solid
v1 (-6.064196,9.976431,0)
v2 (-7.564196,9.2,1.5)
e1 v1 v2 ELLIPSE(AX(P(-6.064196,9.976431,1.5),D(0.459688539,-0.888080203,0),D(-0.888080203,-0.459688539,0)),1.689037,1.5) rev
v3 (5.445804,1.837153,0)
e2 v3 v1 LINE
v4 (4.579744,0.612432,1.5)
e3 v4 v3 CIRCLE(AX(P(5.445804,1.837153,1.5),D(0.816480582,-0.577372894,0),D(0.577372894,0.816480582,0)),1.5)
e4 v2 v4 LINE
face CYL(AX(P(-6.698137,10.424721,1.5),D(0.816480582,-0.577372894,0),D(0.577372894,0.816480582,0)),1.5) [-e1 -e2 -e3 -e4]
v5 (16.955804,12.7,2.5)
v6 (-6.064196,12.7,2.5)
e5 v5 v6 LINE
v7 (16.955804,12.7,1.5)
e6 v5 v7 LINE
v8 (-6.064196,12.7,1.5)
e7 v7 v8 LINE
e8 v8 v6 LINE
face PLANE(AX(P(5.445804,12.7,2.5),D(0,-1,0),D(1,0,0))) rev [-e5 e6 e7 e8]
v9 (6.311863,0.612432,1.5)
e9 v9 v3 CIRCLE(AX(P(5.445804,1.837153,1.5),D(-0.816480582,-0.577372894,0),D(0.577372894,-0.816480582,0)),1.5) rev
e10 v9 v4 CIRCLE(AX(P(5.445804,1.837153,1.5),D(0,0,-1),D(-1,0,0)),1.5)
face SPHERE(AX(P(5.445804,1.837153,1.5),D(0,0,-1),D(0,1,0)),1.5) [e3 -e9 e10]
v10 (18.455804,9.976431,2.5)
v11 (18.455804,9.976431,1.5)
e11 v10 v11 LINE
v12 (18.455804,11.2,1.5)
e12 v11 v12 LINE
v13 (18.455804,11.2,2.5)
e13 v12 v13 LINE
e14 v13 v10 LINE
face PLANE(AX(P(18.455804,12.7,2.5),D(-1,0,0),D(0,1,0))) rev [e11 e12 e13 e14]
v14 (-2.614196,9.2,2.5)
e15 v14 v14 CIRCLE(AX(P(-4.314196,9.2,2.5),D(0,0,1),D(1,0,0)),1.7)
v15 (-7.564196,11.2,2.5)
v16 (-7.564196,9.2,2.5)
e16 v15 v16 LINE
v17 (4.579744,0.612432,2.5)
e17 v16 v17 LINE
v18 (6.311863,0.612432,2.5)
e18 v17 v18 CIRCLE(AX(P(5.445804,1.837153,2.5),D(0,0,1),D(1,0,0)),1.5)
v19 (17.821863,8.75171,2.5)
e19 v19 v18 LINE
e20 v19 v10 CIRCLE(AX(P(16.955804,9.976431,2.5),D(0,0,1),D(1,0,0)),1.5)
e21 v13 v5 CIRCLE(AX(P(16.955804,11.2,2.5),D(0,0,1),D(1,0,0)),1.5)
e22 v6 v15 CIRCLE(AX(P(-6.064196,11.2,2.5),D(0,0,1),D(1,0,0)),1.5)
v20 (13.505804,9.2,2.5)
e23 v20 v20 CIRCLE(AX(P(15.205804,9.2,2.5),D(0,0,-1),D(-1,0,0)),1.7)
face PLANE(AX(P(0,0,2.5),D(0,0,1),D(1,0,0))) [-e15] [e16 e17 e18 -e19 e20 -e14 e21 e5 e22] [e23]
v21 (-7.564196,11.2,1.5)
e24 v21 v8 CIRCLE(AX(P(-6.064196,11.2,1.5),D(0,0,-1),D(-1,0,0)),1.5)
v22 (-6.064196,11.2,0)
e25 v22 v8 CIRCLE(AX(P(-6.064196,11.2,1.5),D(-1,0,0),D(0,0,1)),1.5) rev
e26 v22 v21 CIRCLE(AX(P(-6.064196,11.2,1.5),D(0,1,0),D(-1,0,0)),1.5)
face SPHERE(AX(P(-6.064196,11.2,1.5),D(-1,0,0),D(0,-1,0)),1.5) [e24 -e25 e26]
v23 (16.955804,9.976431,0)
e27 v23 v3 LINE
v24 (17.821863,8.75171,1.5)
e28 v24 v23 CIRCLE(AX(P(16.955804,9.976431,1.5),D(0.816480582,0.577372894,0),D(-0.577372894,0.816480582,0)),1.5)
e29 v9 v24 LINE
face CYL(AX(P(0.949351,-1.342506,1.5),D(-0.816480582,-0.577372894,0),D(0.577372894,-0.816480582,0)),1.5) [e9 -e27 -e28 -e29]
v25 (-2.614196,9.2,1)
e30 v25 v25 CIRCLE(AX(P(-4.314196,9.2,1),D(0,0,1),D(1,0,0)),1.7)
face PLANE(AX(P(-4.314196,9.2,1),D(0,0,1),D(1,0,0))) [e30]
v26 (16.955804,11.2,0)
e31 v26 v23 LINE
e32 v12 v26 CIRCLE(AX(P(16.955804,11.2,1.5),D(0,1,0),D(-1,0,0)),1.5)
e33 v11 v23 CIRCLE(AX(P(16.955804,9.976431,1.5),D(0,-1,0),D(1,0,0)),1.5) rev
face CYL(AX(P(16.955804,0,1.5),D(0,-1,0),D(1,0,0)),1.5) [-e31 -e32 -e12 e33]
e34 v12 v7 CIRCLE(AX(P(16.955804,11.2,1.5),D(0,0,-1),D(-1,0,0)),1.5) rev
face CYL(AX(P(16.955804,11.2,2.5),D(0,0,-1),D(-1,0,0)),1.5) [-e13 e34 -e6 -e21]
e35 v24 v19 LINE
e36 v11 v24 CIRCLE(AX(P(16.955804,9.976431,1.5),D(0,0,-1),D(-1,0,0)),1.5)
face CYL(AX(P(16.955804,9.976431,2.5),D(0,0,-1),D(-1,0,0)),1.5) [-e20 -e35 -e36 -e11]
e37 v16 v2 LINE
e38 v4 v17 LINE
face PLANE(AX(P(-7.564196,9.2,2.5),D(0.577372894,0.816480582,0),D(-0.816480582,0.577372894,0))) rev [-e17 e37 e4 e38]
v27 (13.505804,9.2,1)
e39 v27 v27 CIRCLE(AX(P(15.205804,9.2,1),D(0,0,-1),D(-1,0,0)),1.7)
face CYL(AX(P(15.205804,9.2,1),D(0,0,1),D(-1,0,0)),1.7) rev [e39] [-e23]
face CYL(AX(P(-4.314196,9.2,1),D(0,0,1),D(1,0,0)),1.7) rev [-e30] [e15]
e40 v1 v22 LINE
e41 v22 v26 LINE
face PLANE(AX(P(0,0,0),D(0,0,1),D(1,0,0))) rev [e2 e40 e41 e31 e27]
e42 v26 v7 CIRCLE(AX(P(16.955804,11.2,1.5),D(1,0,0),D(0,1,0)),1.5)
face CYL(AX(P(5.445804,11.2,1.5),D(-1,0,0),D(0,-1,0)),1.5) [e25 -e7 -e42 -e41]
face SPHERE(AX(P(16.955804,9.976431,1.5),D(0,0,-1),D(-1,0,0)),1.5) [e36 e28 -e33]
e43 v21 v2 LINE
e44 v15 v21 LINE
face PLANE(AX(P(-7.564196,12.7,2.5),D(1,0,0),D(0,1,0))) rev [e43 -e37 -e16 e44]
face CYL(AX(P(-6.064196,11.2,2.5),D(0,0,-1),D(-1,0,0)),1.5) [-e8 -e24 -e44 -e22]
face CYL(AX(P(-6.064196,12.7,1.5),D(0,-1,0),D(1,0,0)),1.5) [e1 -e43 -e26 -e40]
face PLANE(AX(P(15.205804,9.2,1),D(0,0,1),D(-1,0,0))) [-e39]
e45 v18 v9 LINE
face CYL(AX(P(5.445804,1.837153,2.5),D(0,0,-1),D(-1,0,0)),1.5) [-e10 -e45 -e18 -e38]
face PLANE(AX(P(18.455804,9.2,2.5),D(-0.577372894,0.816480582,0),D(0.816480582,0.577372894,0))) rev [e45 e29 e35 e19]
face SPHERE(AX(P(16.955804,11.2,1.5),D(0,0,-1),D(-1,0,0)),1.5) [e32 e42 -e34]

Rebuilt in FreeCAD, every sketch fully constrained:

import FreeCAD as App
import Part
import Sketcher
from FreeCAD import Vector
Q = App.Units.Quantity


def edges_at(feature, points):
    """Names of the edges that pass closest to the given points."""
    edges = feature.Shape.Edges
    near = lambda p: min(range(len(edges)), key=lambda i: edges[i].distToShape(Part.Vertex(*p))[0])
    return sorted({f"Edge{near(p) + 1}" for p in points})


def add_polygon(sketch, points):
    """Adds a closed chain of lines whose ends are joined by coincident constraints."""
    first, n = sketch.GeometryCount, len(points)
    for a, b in zip(points, points[1:] + points[:1]):
        sketch.addGeometry(Part.LineSegment(App.Vector(*a, 0), App.Vector(*b, 0)), False)
    for i in range(n):
        sketch.addConstraint(Sketcher.Constraint("Coincident", first + i, 2, first + (i + 1) % n, 1))

doc = App.newDocument("Part")
body = doc.addObject("PartDesign::Body", "Body")

# Sketch on XY plane
sketch1 = body.newObject("Sketcher::SketchObject", "Sketch")
sketch1.AttachmentSupport = (doc.getObject("XY_Plane"), [""])
sketch1.MapMode = "FlatFace"
add_polygon(sketch1, [(-7.6, 12.7), (-7.6, 9.2), (5.4, 0), (5.4, 12.7)])  # lines 0-3
sketch1.addConstraint([
    Sketcher.Constraint("Vertical", 0),
    Sketcher.Constraint("Vertical", 2),
    Sketcher.Constraint("Horizontal", 3),
    Sketcher.Constraint("PointOnObject", 1, 2, -1),
    Sketcher.Constraint("DistanceY", 0, 2, 0, 1, Q("3.5 mm")),
    Sketcher.Constraint("DistanceY", 2, 1, 2, 2, Q("12.7 mm")),
    Sketcher.Constraint("DistanceX", 3, 2, 3, 1, Q("13.01 mm")),
    Sketcher.Constraint("DistanceX", 0, 2, -1, 1, Q("7.564196 mm")),
])
pad1 = body.newObject("PartDesign::Pad", "Pad")
pad1.Profile = sketch1
pad1.Length = 2.5

# Sketch on XY plane
sketch2 = body.newObject("Sketcher::SketchObject", "Sketch001")
sketch2.AttachmentSupport = (doc.getObject("XY_Plane"), [""])
sketch2.MapMode = "FlatFace"
sketch2.AttachmentOffset = App.Placement(Vector(0, 0, 2.5), App.Rotation())
sketch2.addGeometry(Part.Circle(Vector(-4.3, 9.2, 0), Vector(0, 0, 1), 1.7), False)
sketch2.addConstraint([
    Sketcher.Constraint("Diameter", 0, Q("3.4 mm")),
    Sketcher.Constraint("DistanceY", -1, 1, 0, 3, Q("9.2 mm")),
    Sketcher.Constraint("DistanceX", 0, 3, -1, 1, Q("4.314196 mm")),
])
pocket1 = body.newObject("PartDesign::Pocket", "Pocket")
pocket1.Profile = sketch2
pocket1.Length = 1.5
body2 = doc.addObject("PartDesign::Body", "Body001")
doc.recompute()

body2.BaseFeature = body
doc.recompute()

mirroring = doc.addObject("Part::Mirroring", "Mirroring")
mirroring.Source = body
mirroring.Base = Vector(5.445804, 0, 2.5)
mirroring.Normal = Vector(-1, 0, 0)
body3 = doc.addObject("PartDesign::Body", "Body002")
body3.BaseFeature = mirroring
boolean = body2.newObject("PartDesign::Boolean", "Boolean")
boolean.Type = "Fuse"
boolean.addObjects([body3])
doc.recompute()

fillet = body2.newObject("PartDesign::Fillet", "Fillet")
fillet.Base = (boolean, edges_at(boolean, [
    (18.456, 12.7, 1.25),
    (18.456, 9.2, 1.25),
    (5.446, 0, 1.25),
    (18.456, 10.95, 0),
    (11.951, 4.6, 0),
    (-1.059, 4.6, 0),
    (-7.564, 10.95, 0),
    (5.446, 12.7, 0),
    (-7.564, 12.7, 1.25),
]))
fillet.Radius = 1.5
mirroring.Visibility = False

doc.recompute()
